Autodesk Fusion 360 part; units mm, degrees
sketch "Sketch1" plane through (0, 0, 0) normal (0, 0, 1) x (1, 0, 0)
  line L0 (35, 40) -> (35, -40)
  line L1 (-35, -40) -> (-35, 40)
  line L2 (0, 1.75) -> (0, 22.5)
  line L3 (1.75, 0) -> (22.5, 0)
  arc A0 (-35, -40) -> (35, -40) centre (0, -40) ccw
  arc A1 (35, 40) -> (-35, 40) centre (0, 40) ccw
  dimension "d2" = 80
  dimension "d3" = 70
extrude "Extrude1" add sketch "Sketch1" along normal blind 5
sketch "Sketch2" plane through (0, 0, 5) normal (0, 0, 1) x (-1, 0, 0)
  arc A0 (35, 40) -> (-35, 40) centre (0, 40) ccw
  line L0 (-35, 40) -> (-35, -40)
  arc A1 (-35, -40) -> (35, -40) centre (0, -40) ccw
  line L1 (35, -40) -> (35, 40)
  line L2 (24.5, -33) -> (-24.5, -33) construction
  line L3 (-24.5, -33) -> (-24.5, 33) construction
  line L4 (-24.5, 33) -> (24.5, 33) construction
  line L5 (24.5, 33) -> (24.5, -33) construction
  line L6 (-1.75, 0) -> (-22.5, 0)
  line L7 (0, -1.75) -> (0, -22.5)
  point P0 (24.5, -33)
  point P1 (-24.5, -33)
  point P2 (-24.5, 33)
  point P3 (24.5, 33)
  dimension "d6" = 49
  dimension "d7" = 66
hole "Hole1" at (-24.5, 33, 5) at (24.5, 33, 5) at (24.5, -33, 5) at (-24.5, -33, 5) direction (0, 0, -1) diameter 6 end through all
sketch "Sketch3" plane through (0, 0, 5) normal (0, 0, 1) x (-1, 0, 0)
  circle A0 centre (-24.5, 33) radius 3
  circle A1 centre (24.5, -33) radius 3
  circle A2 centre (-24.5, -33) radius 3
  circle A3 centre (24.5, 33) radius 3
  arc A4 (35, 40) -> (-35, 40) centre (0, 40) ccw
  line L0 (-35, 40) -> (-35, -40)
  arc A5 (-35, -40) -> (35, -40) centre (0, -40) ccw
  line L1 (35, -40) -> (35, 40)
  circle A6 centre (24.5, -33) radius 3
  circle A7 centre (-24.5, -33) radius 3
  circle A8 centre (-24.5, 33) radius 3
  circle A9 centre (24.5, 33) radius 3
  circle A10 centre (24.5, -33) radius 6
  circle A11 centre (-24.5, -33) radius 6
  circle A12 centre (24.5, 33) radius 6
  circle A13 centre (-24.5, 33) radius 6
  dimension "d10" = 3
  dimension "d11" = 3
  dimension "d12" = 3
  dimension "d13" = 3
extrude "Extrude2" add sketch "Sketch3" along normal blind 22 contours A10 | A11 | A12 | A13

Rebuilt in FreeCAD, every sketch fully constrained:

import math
import FreeCAD as App
import Part
import Sketcher

V = App.Vector

doc = App.newDocument("Part")
body = doc.addObject("PartDesign::Body", "Body")

# Sketch on XY plane
sketch1 = body.newObject("Sketcher::SketchObject", "Sketch")
sketch1.AttachmentSupport = (doc.getObject("XY_Plane"), [""])
sketch1.MapMode = "FlatFace"
sketch1.addGeometry(Part.LineSegment(V(35, -40, 0), V(35, 40, 0)), False)
sketch1.addGeometry(Part.ArcOfCircle(Part.Circle(V(0, 40, 0), V(0, 0, 1), 35), math.radians(0), math.radians(180)), False)
sketch1.addGeometry(Part.LineSegment(V(-35, 40, 0), V(-35, -40, 0)), False)
sketch1.addGeometry(Part.ArcOfCircle(Part.Circle(V(0, -40, 0), V(0, 0, 1), 35), math.radians(180), math.radians(360)), False)
sketch1.addConstraint(Sketcher.Constraint("Tangent", 0, 2, 1, 1))
sketch1.addConstraint(Sketcher.Constraint("Tangent", 1, 2, 2, 1))
sketch1.addConstraint(Sketcher.Constraint("Tangent", 2, 2, 3, 1))
sketch1.addConstraint(Sketcher.Constraint("Tangent", 3, 2, 0, 1))
sketch1.addConstraint(Sketcher.Constraint("Vertical", 0))
sketch1.addConstraint(Sketcher.Constraint("Vertical", 2))
sketch1.addConstraint(Sketcher.Constraint("Symmetric", 1, 3, 3, 3, -1, 1))
sketch1.addConstraint(Sketcher.Constraint("Radius", 1, 35.0))
sketch1.addConstraint(Sketcher.Constraint("DistanceY", 0, 1, 0, 2, 80.0))
pad1 = body.newObject("PartDesign::Pad", "Pad")
pad1.Profile = sketch1
pad1.Length = 5

# Sketch on XY plane
sketch2 = body.newObject("Sketcher::SketchObject", "Sketch001")
sketch2.AttachmentSupport = (doc.getObject("XY_Plane"), [""])
sketch2.MapMode = "FlatFace"
sketch2.AttachmentOffset = App.Placement(V(0, 0, 5), App.Rotation())
sketch2.addGeometry(Part.Circle(V(-24.5, 33, 0), V(0, 0, 1), 3), False)
sketch2.addGeometry(Part.Circle(V(24.5, 33, 0), V(0, 0, 1), 3), False)
sketch2.addGeometry(Part.Circle(V(24.5, -33, 0), V(0, 0, 1), 3), False)
sketch2.addGeometry(Part.Circle(V(-24.5, -33, 0), V(0, 0, 1), 3), False)
sketch2.addConstraint(Sketcher.Constraint("Equal", 0, 1))
sketch2.addConstraint(Sketcher.Constraint("Equal", 1, 2))
sketch2.addConstraint(Sketcher.Constraint("Equal", 2, 3))
sketch2.addConstraint(Sketcher.Constraint("Symmetric", 0, 3, 2, 3, -1, 1))
sketch2.addConstraint(Sketcher.Constraint("Symmetric", 1, 3, 3, 3, -1, 1))
sketch2.addConstraint(Sketcher.Constraint("Symmetric", 0, 3, 1, 3, -2))
sketch2.addConstraint(Sketcher.Constraint("Diameter", 0, 6.0))
sketch2.addConstraint(Sketcher.Constraint("DistanceY", -1, 1, 0, 3, 33.0))
sketch2.addConstraint(Sketcher.Constraint("DistanceX", 0, 3, 1, 3, 49.0))
doc.recompute()
hole = body.newObject("PartDesign::Hole", "Hole")
hole.Profile = sketch2
hole.ThreadType = "None"
hole.Diameter = 6
hole.DepthType = "ThroughAll"

# Sketch on XY plane
sketch3 = body.newObject("Sketcher::SketchObject", "Sketch002")
sketch3.AttachmentSupport = (doc.getObject("XY_Plane"), [""])
sketch3.MapMode = "FlatFace"
sketch3.AttachmentOffset = App.Placement(V(0, 0, 5), App.Rotation())
sketch3.addGeometry(Part.Circle(V(-24.5, 33, 0), V(0, 0, 1), 6), False)
sketch3.addGeometry(Part.Circle(V(-24.5, 33, 0), V(0, 0, 1), 3), False)
sketch3.addGeometry(Part.Circle(V(24.5, 33, 0), V(0, 0, 1), 6), False)
sketch3.addGeometry(Part.Circle(V(24.5, 33, 0), V(0, 0, 1), 3), False)
sketch3.addGeometry(Part.Circle(V(-24.5, -33, 0), V(0, 0, 1), 6), False)
sketch3.addGeometry(Part.Circle(V(-24.5, -33, 0), V(0, 0, 1), 3), False)
sketch3.addGeometry(Part.Circle(V(24.5, -33, 0), V(0, 0, 1), 6), False)
sketch3.addGeometry(Part.Circle(V(24.5, -33, 0), V(0, 0, 1), 3), False)
sketch3.addConstraint(Sketcher.Constraint("Coincident", 1, 3, 0, 3))
sketch3.addConstraint(Sketcher.Constraint("Coincident", 3, 3, 2, 3))
sketch3.addConstraint(Sketcher.Constraint("Coincident", 5, 3, 4, 3))
sketch3.addConstraint(Sketcher.Constraint("Coincident", 7, 3, 6, 3))
sketch3.addConstraint(Sketcher.Constraint("Equal", 0, 2))
sketch3.addConstraint(Sketcher.Constraint("Equal", 1, 3))
sketch3.addConstraint(Sketcher.Constraint("Equal", 2, 4))
sketch3.addConstraint(Sketcher.Constraint("Equal", 3, 5))
sketch3.addConstraint(Sketcher.Constraint("Equal", 4, 6))
sketch3.addConstraint(Sketcher.Constraint("Equal", 5, 7))
sketch3.addConstraint(Sketcher.Constraint("Symmetric", 2, 3, 4, 3, -1, 1))
sketch3.addConstraint(Sketcher.Constraint("Symmetric", 0, 3, 6, 3, -1, 1))
sketch3.addConstraint(Sketcher.Constraint("Symmetric", 0, 3, 2, 3, -2))
sketch3.addConstraint(Sketcher.Constraint("Diameter", 1, 6.0))
sketch3.addConstraint(Sketcher.Constraint("Diameter", 0, 12.0))
sketch3.addConstraint(Sketcher.Constraint("DistanceY", -1, 1, 0, 3, 33.0))
sketch3.addConstraint(Sketcher.Constraint("DistanceX", 0, 3, 2, 3, 49.0))
pad2 = body.newObject("PartDesign::Pad", "Pad001")
pad2.Profile = sketch3
pad2.Length = 22

doc.recompute()
